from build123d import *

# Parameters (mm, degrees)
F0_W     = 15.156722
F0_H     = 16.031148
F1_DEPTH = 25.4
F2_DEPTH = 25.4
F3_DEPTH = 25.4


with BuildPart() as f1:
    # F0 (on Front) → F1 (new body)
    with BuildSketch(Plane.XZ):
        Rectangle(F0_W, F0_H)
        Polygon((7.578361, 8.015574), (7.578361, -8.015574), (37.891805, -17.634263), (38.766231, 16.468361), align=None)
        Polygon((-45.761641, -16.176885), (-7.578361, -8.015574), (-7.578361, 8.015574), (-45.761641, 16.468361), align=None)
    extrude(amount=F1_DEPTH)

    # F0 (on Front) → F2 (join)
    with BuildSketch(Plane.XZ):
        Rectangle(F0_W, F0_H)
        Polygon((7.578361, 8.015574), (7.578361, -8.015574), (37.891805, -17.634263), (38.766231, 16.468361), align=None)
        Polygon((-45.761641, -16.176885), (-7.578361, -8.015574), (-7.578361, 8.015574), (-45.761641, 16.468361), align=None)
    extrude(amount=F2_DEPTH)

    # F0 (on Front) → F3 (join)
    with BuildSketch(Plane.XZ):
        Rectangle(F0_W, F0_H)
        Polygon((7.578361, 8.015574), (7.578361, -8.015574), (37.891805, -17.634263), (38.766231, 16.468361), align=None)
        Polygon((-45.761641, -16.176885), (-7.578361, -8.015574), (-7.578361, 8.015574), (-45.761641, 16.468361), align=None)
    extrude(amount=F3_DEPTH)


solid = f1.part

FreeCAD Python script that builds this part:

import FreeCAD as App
import Part
import Sketcher
from FreeCAD import Vector
Q = App.Units.Quantity

doc = App.newDocument("Part")
params = doc.addObject("Spreadsheet::Sheet", "Params")
for row, (alias, value) in enumerate([
    ("pad1_length", "1 in"),
    ("pad2_length", "1 in"),
    ("pad3_length", "1 in"),
], start=1):
    params.set(f"A{row}", alias)
    params.set(f"B{row}", "=" + value)
    params.setAlias(f"B{row}", alias)

body = doc.addObject("PartDesign::Body", "Body")

# Sketch on XZ plane
sketch1 = body.newObject("Sketcher::SketchObject", "Sketch")
sketch1.AttachmentSupport = (doc.getObject("XZ_Plane"), [""])
sketch1.MapMode = "FlatFace"
sketch1.addGeometry(Part.LineSegment(Vector(-8, -8, 0), Vector(8, -8, 0)), False)
sketch1.addGeometry(Part.LineSegment(Vector(8, -8, 0), Vector(38, -18, 0)), False)
sketch1.addGeometry(Part.LineSegment(Vector(38, -18, 0), Vector(39, 16, 0)), False)
sketch1.addGeometry(Part.LineSegment(Vector(39, 16, 0), Vector(8, 8, 0)), False)
sketch1.addGeometry(Part.LineSegment(Vector(8, 8, 0), Vector(-8, 8, 0)), False)
sketch1.addGeometry(Part.LineSegment(Vector(-8, 8, 0), Vector(-46, 16, 0)), False)
sketch1.addGeometry(Part.LineSegment(Vector(-46, 16, 0), Vector(-46, -16, 0)), False)
sketch1.addGeometry(Part.LineSegment(Vector(-46, -16, 0), Vector(-8, -8, 0)), False)
sketch1.addConstraint(Sketcher.Constraint("Coincident", 0, 2, 1, 1))
sketch1.addConstraint(Sketcher.Constraint("Coincident", 1, 2, 2, 1))
sketch1.addConstraint(Sketcher.Constraint("Coincident", 2, 2, 3, 1))
sketch1.addConstraint(Sketcher.Constraint("Coincident", 3, 2, 4, 1))
sketch1.addConstraint(Sketcher.Constraint("Coincident", 4, 2, 5, 1))
sketch1.addConstraint(Sketcher.Constraint("Coincident", 5, 2, 6, 1))
sketch1.addConstraint(Sketcher.Constraint("Coincident", 6, 2, 7, 1))
sketch1.addConstraint(Sketcher.Constraint("Coincident", 7, 2, 0, 1))
sketch1.addConstraint(Sketcher.Constraint("Horizontal", 0))
sketch1.addConstraint(Sketcher.Constraint("Horizontal", 4))
sketch1.addConstraint(Sketcher.Constraint("Vertical", 6))
sketch1.addConstraint(Sketcher.Constraint("Symmetric", 0, 2, 4, 2, -1, 1))
sketch1.addConstraint(Sketcher.Constraint("Horizontal", 2, 2, 5, 2))
sketch1.addConstraint(Sketcher.Constraint("Vertical", 0, 2, 3, 2))
sketch1.addConstraint(Sketcher.Constraint("Vertical", 4, 2, 7, 2))
sketch1.addConstraint(Sketcher.Constraint("DistanceX", 5, 2, 3, 2, Q("2.1000001 in")))
sketch1.addConstraint(Sketcher.Constraint("Distance", 7, Q("39.045741 mm")))
sketch1.addConstraint(Sketcher.Constraint("DistanceX", 0, 1, 0, 2, Q("15.156722 mm")))
sketch1.addConstraint(Sketcher.Constraint("DistanceY", 6, 2, 6, 1, Q("32.645246 mm")))
sketch1.addConstraint(Sketcher.Constraint("DistanceX", -1, 1, 2, 2, Q("38.766231 mm")))
sketch1.addConstraint(Sketcher.Constraint("DistanceY", -1, 1, 2, 2, Q("16.468361 mm")))
sketch1.addConstraint(Sketcher.Constraint("DistanceY", 1, 2, 0, 2, Q("9.618689 mm")))
sketch1.addConstraint(Sketcher.Constraint("Distance", 1, Q("31.802894 mm")))
pad1 = body.newObject("PartDesign::Pad", "Pad")
pad1.Profile = sketch1
pad1.setExpression("Length", "Params.pad1_length")

# Sketch on XZ plane
sketch2 = body.newObject("Sketcher::SketchObject", "Sketch001")
sketch2.AttachmentSupport = (doc.getObject("XZ_Plane"), [""])
sketch2.MapMode = "FlatFace"
sketch2.addGeometry(Part.LineSegment(Vector(-8, -8, 0), Vector(8, -8, 0)), False)
sketch2.addGeometry(Part.LineSegment(Vector(8, -8, 0), Vector(38, -18, 0)), False)
sketch2.addGeometry(Part.LineSegment(Vector(38, -18, 0), Vector(39, 16, 0)), False)
sketch2.addGeometry(Part.LineSegment(Vector(39, 16, 0), Vector(8, 8, 0)), False)
sketch2.addGeometry(Part.LineSegment(Vector(8, 8, 0), Vector(-8, 8, 0)), False)
sketch2.addGeometry(Part.LineSegment(Vector(-8, 8, 0), Vector(-46, 16, 0)), False)
sketch2.addGeometry(Part.LineSegment(Vector(-46, 16, 0), Vector(-46, -16, 0)), False)
sketch2.addGeometry(Part.LineSegment(Vector(-46, -16, 0), Vector(-8, -8, 0)), False)
sketch2.addConstraint(Sketcher.Constraint("Coincident", 0, 2, 1, 1))
sketch2.addConstraint(Sketcher.Constraint("Coincident", 1, 2, 2, 1))
sketch2.addConstraint(Sketcher.Constraint("Coincident", 2, 2, 3, 1))
sketch2.addConstraint(Sketcher.Constraint("Coincident", 3, 2, 4, 1))
sketch2.addConstraint(Sketcher.Constraint("Coincident", 4, 2, 5, 1))
sketch2.addConstraint(Sketcher.Constraint("Coincident", 5, 2, 6, 1))
sketch2.addConstraint(Sketcher.Constraint("Coincident", 6, 2, 7, 1))
sketch2.addConstraint(Sketcher.Constraint("Coincident", 7, 2, 0, 1))
sketch2.addConstraint(Sketcher.Constraint("Horizontal", 0))
sketch2.addConstraint(Sketcher.Constraint("Horizontal", 4))
sketch2.addConstraint(Sketcher.Constraint("Vertical", 6))
sketch2.addConstraint(Sketcher.Constraint("Symmetric", 0, 2, 4, 2, -1, 1))
sketch2.addConstraint(Sketcher.Constraint("Horizontal", 2, 2, 5, 2))
sketch2.addConstraint(Sketcher.Constraint("Vertical", 0, 2, 3, 2))
sketch2.addConstraint(Sketcher.Constraint("Vertical", 4, 2, 7, 2))
sketch2.addConstraint(Sketcher.Constraint("DistanceX", 5, 2, 3, 2, Q("2.1000001 in")))
sketch2.addConstraint(Sketcher.Constraint("Distance", 7, Q("39.045741 mm")))
sketch2.addConstraint(Sketcher.Constraint("DistanceX", 0, 1, 0, 2, Q("15.156722 mm")))
sketch2.addConstraint(Sketcher.Constraint("DistanceY", 6, 2, 6, 1, Q("32.645246 mm")))
sketch2.addConstraint(Sketcher.Constraint("DistanceX", -1, 1, 2, 2, Q("38.766231 mm")))
sketch2.addConstraint(Sketcher.Constraint("DistanceY", -1, 1, 2, 2, Q("16.468361 mm")))
sketch2.addConstraint(Sketcher.Constraint("DistanceY", 1, 2, 0, 2, Q("9.618689 mm")))
sketch2.addConstraint(Sketcher.Constraint("Distance", 1, Q("31.802894 mm")))
pad2 = body.newObject("PartDesign::Pad", "Pad001")
pad2.Profile = sketch2
pad2.setExpression("Length", "Params.pad2_length")

# Sketch on XZ plane
sketch3 = body.newObject("Sketcher::SketchObject", "Sketch002")
sketch3.AttachmentSupport = (doc.getObject("XZ_Plane"), [""])
sketch3.MapMode = "FlatFace"
sketch3.addGeometry(Part.LineSegment(Vector(-8, -8, 0), Vector(8, -8, 0)), False)
sketch3.addGeometry(Part.LineSegment(Vector(8, -8, 0), Vector(38, -18, 0)), False)
sketch3.addGeometry(Part.LineSegment(Vector(38, -18, 0), Vector(39, 16, 0)), False)
sketch3.addGeometry(Part.LineSegment(Vector(39, 16, 0), Vector(8, 8, 0)), False)
sketch3.addGeometry(Part.LineSegment(Vector(8, 8, 0), Vector(-8, 8, 0)), False)
sketch3.addGeometry(Part.LineSegment(Vector(-8, 8, 0), Vector(-46, 16, 0)), False)
sketch3.addGeometry(Part.LineSegment(Vector(-46, 16, 0), Vector(-46, -16, 0)), False)
sketch3.addGeometry(Part.LineSegment(Vector(-46, -16, 0), Vector(-8, -8, 0)), False)
sketch3.addConstraint(Sketcher.Constraint("Coincident", 0, 2, 1, 1))
sketch3.addConstraint(Sketcher.Constraint("Coincident", 1, 2, 2, 1))
sketch3.addConstraint(Sketcher.Constraint("Coincident", 2, 2, 3, 1))
sketch3.addConstraint(Sketcher.Constraint("Coincident", 3, 2, 4, 1))
sketch3.addConstraint(Sketcher.Constraint("Coincident", 4, 2, 5, 1))
sketch3.addConstraint(Sketcher.Constraint("Coincident", 5, 2, 6, 1))
sketch3.addConstraint(Sketcher.Constraint("Coincident", 6, 2, 7, 1))
sketch3.addConstraint(Sketcher.Constraint("Coincident", 7, 2, 0, 1))
sketch3.addConstraint(Sketcher.Constraint("Horizontal", 0))
sketch3.addConstraint(Sketcher.Constraint("Horizontal", 4))
sketch3.addConstraint(Sketcher.Constraint("Vertical", 6))
sketch3.addConstraint(Sketcher.Constraint("Symmetric", 0, 2, 4, 2, -1, 1))
sketch3.addConstraint(Sketcher.Constraint("Horizontal", 2, 2, 5, 2))
sketch3.addConstraint(Sketcher.Constraint("Vertical", 0, 2, 3, 2))
sketch3.addConstraint(Sketcher.Constraint("Vertical", 4, 2, 7, 2))
sketch3.addConstraint(Sketcher.Constraint("DistanceX", 5, 2, 3, 2, Q("2.1000001 in")))
sketch3.addConstraint(Sketcher.Constraint("Distance", 7, Q("39.045741 mm")))
sketch3.addConstraint(Sketcher.Constraint("DistanceX", 0, 1, 0, 2, Q("15.156722 mm")))
sketch3.addConstraint(Sketcher.Constraint("DistanceY", 6, 2, 6, 1, Q("32.645246 mm")))
sketch3.addConstraint(Sketcher.Constraint("DistanceX", -1, 1, 2, 2, Q("38.766231 mm")))
sketch3.addConstraint(Sketcher.Constraint("DistanceY", -1, 1, 2, 2, Q("16.468361 mm")))
sketch3.addConstraint(Sketcher.Constraint("DistanceY", 1, 2, 0, 2, Q("9.618689 mm")))
sketch3.addConstraint(Sketcher.Constraint("Distance", 1, Q("31.802894 mm")))
pad3 = body.newObject("PartDesign::Pad", "Pad002")
pad3.Profile = sketch3
pad3.setExpression("Length", "Params.pad3_length")

doc.recompute()
